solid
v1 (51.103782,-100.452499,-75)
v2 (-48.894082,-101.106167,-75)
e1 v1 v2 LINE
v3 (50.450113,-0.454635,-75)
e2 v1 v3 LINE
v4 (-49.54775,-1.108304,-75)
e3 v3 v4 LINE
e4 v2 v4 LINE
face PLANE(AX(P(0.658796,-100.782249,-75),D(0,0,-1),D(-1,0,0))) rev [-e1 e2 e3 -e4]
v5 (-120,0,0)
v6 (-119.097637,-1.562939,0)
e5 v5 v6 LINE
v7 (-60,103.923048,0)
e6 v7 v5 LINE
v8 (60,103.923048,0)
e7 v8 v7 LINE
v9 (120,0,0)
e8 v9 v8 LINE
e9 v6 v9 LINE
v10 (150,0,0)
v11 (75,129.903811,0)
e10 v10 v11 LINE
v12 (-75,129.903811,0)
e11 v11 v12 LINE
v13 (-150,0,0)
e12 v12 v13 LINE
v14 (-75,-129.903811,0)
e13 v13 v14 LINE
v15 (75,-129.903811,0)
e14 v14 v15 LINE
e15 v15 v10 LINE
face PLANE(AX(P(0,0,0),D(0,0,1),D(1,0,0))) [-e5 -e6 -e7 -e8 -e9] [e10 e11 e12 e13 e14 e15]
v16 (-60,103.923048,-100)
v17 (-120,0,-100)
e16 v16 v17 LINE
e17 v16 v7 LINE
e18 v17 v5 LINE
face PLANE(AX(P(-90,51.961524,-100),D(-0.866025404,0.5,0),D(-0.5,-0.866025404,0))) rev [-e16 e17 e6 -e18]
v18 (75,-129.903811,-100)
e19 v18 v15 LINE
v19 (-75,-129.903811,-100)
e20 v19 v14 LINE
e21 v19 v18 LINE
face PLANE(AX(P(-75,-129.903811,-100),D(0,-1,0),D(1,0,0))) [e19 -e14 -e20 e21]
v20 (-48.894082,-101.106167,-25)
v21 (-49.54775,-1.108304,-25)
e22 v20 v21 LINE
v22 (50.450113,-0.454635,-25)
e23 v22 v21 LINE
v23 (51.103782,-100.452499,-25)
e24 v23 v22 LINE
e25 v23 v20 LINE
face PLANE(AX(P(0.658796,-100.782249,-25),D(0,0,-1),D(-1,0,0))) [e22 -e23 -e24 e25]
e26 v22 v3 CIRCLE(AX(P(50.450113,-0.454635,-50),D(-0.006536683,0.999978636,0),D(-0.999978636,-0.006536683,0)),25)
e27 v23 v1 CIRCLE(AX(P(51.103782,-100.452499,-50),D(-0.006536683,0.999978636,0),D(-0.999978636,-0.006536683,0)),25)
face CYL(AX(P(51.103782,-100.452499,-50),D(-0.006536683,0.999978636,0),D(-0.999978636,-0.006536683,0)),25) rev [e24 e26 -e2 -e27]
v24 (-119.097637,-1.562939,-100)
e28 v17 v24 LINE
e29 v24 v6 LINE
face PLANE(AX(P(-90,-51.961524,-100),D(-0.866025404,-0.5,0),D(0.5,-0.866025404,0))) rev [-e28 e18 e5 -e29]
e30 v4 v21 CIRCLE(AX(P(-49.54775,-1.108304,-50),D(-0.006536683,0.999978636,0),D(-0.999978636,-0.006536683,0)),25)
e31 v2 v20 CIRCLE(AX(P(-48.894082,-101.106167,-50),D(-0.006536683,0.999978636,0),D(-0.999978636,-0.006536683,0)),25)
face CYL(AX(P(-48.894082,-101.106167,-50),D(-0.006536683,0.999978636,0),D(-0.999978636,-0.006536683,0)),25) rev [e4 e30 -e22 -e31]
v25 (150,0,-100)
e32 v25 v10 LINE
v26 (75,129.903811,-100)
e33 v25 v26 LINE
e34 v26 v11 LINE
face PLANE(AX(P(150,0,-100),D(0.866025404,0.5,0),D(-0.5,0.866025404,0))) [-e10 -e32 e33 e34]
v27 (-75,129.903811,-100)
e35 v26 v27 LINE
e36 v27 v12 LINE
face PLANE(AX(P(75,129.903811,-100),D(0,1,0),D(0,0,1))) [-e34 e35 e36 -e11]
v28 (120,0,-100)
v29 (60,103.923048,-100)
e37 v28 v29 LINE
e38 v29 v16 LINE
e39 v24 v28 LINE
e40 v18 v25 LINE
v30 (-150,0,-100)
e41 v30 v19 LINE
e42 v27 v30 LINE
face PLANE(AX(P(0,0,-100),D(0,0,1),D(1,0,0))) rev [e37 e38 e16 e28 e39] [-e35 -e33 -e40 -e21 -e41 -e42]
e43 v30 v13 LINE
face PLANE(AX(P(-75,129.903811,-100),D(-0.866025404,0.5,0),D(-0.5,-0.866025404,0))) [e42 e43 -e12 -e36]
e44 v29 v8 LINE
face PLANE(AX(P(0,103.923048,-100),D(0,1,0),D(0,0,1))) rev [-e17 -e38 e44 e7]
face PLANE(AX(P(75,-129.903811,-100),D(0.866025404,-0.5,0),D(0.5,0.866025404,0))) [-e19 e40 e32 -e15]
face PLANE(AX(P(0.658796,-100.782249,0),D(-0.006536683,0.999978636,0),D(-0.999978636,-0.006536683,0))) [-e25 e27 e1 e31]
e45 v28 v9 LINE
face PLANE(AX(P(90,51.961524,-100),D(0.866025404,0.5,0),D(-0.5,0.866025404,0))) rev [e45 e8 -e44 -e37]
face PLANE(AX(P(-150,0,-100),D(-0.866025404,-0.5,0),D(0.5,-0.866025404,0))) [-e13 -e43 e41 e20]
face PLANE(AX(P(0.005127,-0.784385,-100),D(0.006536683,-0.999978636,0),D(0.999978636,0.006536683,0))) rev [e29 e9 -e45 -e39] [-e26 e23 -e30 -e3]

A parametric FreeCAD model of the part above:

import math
import FreeCAD as App
import Part
import Sketcher

V = App.Vector
Q = App.Units.Quantity


def add_polygon(sketch, points):
    """Adds a closed chain of lines whose ends are joined by coincident constraints."""
    first, n = sketch.GeometryCount, len(points)
    for a, b in zip(points, points[1:] + points[:1]):
        sketch.addGeometry(Part.LineSegment(App.Vector(*a, 0), App.Vector(*b, 0)), False)
    for i in range(n):
        sketch.addConstraint(Sketcher.Constraint("Coincident", first + i, 2, first + (i + 1) % n, 1))

doc = App.newDocument("Part")
params = doc.addObject("Spreadsheet::Sheet", "Params")
for row, (alias, value) in enumerate([
    ("sketch1_width", "150 mm"),
    ("sketch1_length", "150 mm"),
    ("pad1_length", "100 mm"),
    ("sketch2_width", "120 mm"),
    ("sketch2_length", "120 mm"),
    ("pocket1_length", "100 mm"),
    ("sketch3_radius", "25 mm"),
    ("sketch3_width", "100 mm"),
    ("pocket2_length", "100 mm"),
], start=1):
    params.set(f"A{row}", alias)
    params.set(f"B{row}", "=" + value)
    params.setAlias(f"B{row}", alias)

body = doc.addObject("PartDesign::Body", "Body")

# Sketch on XY plane
sketch1 = doc.addObject("Sketcher::SketchObject", "Sketch")
body.addObject(sketch1)
sketch1.AttachmentSupport = (doc.XY_Plane, [""])
sketch1.MapMode = "FlatFace"
add_polygon(sketch1, [(150, 0), (75, 129.903811), (-75, 129.903811), (-150, 0), (-75, -129.903811), (75, -129.903811)])  # lines 0-5
sketch1.addConstraint(Sketcher.Constraint("Horizontal", 1))
sketch1.addConstraint(Sketcher.Constraint("Horizontal", 4))
sketch1.addConstraint(Sketcher.Constraint("Symmetric", 0, 2, 3, 2, -1, 1))
sketch1.addConstraint(Sketcher.Constraint("Symmetric", 2, 2, 5, 2, -1, 1))
sketch1.addConstraint(Sketcher.Constraint("PointOnObject", 2, 2, -1))
sketch1.addConstraint(Sketcher.Constraint("Parallel", 2, 5))
sketch1.addConstraint(Sketcher.Constraint("Vertical", 1, 2, 3, 2))
sketch1.addConstraint(Sketcher.Constraint("DistanceX", 1, 2, 1, 1, 150.0))
sketch1.addConstraint(Sketcher.Constraint("Angle", 0, Q("120 deg")))
sketch1.addConstraint(Sketcher.Constraint("Distance", 0, 150.0))
sketch1.setExpression("Constraints[13]", "Params.sketch1_width")
sketch1.setExpression("Constraints[15]", "Params.sketch1_length")
pad1 = doc.addObject("PartDesign::Pad", "Pad")
body.addObject(pad1)
pad1.Profile = sketch1
pad1.setExpression("Length", "Params.pad1_length")
pad1.Reversed = True

# Sketch on XY plane
sketch2 = doc.addObject("Sketcher::SketchObject", "Sketch001")
body.addObject(sketch2)
sketch2.AttachmentSupport = (doc.XY_Plane, [""])
sketch2.MapMode = "FlatFace"
add_polygon(sketch2, [(-120, 0), (-119.097637, -1.562939), (120, 0), (60, 103.923048), (-60, 103.923048)])  # lines 0-4
sketch2.addConstraint(Sketcher.Constraint("Horizontal", 3))
sketch2.addConstraint(Sketcher.Constraint("Symmetric", 1, 2, 4, 2, -1, 1))
sketch2.addConstraint(Sketcher.Constraint("PointOnObject", 1, 2, -1))
sketch2.addConstraint(Sketcher.Constraint("Parallel", 0, 2))
sketch2.addConstraint(Sketcher.Constraint("Equal", 2, 4))
sketch2.addConstraint(Sketcher.Constraint("DistanceX", 3, 2, 3, 1, 120.0))
sketch2.addConstraint(Sketcher.Constraint("Angle", 0, Q("-60 deg")))
sketch2.addConstraint(Sketcher.Constraint("Distance", 2, 120.0))
sketch2.addConstraint(Sketcher.Constraint("DistanceY", 0, 2, -1, 1, 1.562939))
sketch2.setExpression("Constraints[10]", "Params.sketch2_width")
sketch2.setExpression("Constraints[12]", "Params.sketch2_length")
pocket1 = doc.addObject("PartDesign::Pocket", "Pocket")
body.addObject(pocket1)
pocket1.Profile = sketch2
pocket1.setExpression("Length", "Params.pocket1_length")

# Sketch on an angled plane
sketch3 = doc.addObject("Sketcher::SketchObject", "Sketch002")
body.addObject(sketch3)
sketch3.Placement = App.Placement(V(0.005127, -0.784385, 0), App.Rotation(V(0.999978636, 0.006536683, 0), V(0, 0, -1.000000001), V(-0.006536683, 0.999978636, 0), "ZXY"))
sketch3.addGeometry(Part.ArcOfCircle(Part.Circle(V(-49.553936, 50, 0), V(0, 0, 1), 25), math.radians(90), math.radians(270)), False)
sketch3.addGeometry(Part.LineSegment(V(-49.553936, 25, 0), V(50.446064, 25, 0)), False)
sketch3.addGeometry(Part.ArcOfCircle(Part.Circle(V(50.446064, 50, 0), V(0, 0, 1), 25), math.radians(-90), math.radians(90)), False)
sketch3.addGeometry(Part.LineSegment(V(50.446064, 75, 0), V(-49.553936, 75, 0)), False)
sketch3.addConstraint(Sketcher.Constraint("Tangent", 0, 2, 1, 1))
sketch3.addConstraint(Sketcher.Constraint("Tangent", 1, 2, 2, 1))
sketch3.addConstraint(Sketcher.Constraint("Tangent", 2, 2, 3, 1))
sketch3.addConstraint(Sketcher.Constraint("Tangent", 3, 2, 0, 1))
sketch3.addConstraint(Sketcher.Constraint("Horizontal", 1))
sketch3.addConstraint(Sketcher.Constraint("Horizontal", 3))
sketch3.addConstraint(Sketcher.Constraint("Radius", 0, 25.0))
sketch3.addConstraint(Sketcher.Constraint("DistanceX", 1, 1, 1, 2, 100.0))
sketch3.addConstraint(Sketcher.Constraint("DistanceY", -1, 1, 0, 3, 50.0))
sketch3.addConstraint(Sketcher.Constraint("DistanceX", 0, 3, -1, 1, 49.553936))
sketch3.setExpression("Constraints[6]", "Params.sketch3_radius")
sketch3.setExpression("Constraints[7]", "Params.sketch3_width")
pocket2 = doc.addObject("PartDesign::Pocket", "Pocket001")
body.addObject(pocket2)
pocket2.Profile = sketch3
pocket2.setExpression("Length", "Params.pocket2_length")

doc.recompute()
